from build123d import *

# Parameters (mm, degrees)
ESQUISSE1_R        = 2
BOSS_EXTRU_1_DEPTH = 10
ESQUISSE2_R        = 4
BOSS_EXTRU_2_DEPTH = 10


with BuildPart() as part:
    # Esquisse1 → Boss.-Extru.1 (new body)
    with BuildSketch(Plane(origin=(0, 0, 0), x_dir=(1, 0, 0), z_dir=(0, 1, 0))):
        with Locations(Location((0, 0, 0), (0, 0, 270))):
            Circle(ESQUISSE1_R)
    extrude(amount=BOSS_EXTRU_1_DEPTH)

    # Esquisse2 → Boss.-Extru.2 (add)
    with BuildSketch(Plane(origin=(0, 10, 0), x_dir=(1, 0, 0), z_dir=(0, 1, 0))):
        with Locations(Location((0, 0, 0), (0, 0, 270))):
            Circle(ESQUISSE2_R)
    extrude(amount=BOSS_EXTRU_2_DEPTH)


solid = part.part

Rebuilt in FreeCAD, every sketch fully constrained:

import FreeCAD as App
import Part
import Sketcher
from FreeCAD import Vector

doc = App.newDocument("Part")
params = doc.addObject("Spreadsheet::Sheet", "Params")
for row, (alias, value) in enumerate([
    ("sketch1_diameter", "4 mm"),
    ("pad1_length", "10 mm"),
    ("sketch2_diameter", "8 mm"),
    ("pad2_length", "10 mm"),
], start=1):
    params.set(f"A{row}", alias)
    params.set(f"B{row}", "=" + value)
    params.setAlias(f"B{row}", alias)

body = doc.addObject("PartDesign::Body", "Body")

# Sketch on XZ plane
sketch1 = body.newObject("Sketcher::SketchObject", "Sketch")
sketch1.AttachmentSupport = (doc.getObject("XZ_Plane"), [""])
sketch1.MapMode = "FlatFace"
sketch1.addGeometry(Part.Circle(Vector(0, 0, 0), Vector(0, 0, 1), 2), False)
sketch1.addConstraint(Sketcher.Constraint("Coincident", 0, 3, -1, 1))
sketch1.addConstraint(Sketcher.Constraint("Diameter", 0, 4.0))
sketch1.setExpression("Constraints[1]", "Params.sketch1_diameter")
pad1 = body.newObject("PartDesign::Pad", "Pad")
pad1.Profile = sketch1
pad1.setExpression("Length", "Params.pad1_length")
pad1.Reversed = True

# Sketch on XZ plane
sketch2 = body.newObject("Sketcher::SketchObject", "Sketch001")
sketch2.AttachmentSupport = (doc.getObject("XZ_Plane"), [""])
sketch2.MapMode = "FlatFace"
sketch2.AttachmentOffset = App.Placement(Vector(0, 0, -10), App.Rotation())
sketch2.addGeometry(Part.Circle(Vector(0, 0, 0), Vector(0, 0, 1), 4), False)
sketch2.addConstraint(Sketcher.Constraint("Coincident", 0, 3, -1, 1))
sketch2.addConstraint(Sketcher.Constraint("Diameter", 0, 8.0))
sketch2.setExpression("Constraints[1]", "Params.sketch2_diameter")
pad2 = body.newObject("PartDesign::Pad", "Pad001")
pad2.Profile = sketch2
pad2.setExpression("Length", "Params.pad2_length")
pad2.Reversed = True

doc.recompute()
